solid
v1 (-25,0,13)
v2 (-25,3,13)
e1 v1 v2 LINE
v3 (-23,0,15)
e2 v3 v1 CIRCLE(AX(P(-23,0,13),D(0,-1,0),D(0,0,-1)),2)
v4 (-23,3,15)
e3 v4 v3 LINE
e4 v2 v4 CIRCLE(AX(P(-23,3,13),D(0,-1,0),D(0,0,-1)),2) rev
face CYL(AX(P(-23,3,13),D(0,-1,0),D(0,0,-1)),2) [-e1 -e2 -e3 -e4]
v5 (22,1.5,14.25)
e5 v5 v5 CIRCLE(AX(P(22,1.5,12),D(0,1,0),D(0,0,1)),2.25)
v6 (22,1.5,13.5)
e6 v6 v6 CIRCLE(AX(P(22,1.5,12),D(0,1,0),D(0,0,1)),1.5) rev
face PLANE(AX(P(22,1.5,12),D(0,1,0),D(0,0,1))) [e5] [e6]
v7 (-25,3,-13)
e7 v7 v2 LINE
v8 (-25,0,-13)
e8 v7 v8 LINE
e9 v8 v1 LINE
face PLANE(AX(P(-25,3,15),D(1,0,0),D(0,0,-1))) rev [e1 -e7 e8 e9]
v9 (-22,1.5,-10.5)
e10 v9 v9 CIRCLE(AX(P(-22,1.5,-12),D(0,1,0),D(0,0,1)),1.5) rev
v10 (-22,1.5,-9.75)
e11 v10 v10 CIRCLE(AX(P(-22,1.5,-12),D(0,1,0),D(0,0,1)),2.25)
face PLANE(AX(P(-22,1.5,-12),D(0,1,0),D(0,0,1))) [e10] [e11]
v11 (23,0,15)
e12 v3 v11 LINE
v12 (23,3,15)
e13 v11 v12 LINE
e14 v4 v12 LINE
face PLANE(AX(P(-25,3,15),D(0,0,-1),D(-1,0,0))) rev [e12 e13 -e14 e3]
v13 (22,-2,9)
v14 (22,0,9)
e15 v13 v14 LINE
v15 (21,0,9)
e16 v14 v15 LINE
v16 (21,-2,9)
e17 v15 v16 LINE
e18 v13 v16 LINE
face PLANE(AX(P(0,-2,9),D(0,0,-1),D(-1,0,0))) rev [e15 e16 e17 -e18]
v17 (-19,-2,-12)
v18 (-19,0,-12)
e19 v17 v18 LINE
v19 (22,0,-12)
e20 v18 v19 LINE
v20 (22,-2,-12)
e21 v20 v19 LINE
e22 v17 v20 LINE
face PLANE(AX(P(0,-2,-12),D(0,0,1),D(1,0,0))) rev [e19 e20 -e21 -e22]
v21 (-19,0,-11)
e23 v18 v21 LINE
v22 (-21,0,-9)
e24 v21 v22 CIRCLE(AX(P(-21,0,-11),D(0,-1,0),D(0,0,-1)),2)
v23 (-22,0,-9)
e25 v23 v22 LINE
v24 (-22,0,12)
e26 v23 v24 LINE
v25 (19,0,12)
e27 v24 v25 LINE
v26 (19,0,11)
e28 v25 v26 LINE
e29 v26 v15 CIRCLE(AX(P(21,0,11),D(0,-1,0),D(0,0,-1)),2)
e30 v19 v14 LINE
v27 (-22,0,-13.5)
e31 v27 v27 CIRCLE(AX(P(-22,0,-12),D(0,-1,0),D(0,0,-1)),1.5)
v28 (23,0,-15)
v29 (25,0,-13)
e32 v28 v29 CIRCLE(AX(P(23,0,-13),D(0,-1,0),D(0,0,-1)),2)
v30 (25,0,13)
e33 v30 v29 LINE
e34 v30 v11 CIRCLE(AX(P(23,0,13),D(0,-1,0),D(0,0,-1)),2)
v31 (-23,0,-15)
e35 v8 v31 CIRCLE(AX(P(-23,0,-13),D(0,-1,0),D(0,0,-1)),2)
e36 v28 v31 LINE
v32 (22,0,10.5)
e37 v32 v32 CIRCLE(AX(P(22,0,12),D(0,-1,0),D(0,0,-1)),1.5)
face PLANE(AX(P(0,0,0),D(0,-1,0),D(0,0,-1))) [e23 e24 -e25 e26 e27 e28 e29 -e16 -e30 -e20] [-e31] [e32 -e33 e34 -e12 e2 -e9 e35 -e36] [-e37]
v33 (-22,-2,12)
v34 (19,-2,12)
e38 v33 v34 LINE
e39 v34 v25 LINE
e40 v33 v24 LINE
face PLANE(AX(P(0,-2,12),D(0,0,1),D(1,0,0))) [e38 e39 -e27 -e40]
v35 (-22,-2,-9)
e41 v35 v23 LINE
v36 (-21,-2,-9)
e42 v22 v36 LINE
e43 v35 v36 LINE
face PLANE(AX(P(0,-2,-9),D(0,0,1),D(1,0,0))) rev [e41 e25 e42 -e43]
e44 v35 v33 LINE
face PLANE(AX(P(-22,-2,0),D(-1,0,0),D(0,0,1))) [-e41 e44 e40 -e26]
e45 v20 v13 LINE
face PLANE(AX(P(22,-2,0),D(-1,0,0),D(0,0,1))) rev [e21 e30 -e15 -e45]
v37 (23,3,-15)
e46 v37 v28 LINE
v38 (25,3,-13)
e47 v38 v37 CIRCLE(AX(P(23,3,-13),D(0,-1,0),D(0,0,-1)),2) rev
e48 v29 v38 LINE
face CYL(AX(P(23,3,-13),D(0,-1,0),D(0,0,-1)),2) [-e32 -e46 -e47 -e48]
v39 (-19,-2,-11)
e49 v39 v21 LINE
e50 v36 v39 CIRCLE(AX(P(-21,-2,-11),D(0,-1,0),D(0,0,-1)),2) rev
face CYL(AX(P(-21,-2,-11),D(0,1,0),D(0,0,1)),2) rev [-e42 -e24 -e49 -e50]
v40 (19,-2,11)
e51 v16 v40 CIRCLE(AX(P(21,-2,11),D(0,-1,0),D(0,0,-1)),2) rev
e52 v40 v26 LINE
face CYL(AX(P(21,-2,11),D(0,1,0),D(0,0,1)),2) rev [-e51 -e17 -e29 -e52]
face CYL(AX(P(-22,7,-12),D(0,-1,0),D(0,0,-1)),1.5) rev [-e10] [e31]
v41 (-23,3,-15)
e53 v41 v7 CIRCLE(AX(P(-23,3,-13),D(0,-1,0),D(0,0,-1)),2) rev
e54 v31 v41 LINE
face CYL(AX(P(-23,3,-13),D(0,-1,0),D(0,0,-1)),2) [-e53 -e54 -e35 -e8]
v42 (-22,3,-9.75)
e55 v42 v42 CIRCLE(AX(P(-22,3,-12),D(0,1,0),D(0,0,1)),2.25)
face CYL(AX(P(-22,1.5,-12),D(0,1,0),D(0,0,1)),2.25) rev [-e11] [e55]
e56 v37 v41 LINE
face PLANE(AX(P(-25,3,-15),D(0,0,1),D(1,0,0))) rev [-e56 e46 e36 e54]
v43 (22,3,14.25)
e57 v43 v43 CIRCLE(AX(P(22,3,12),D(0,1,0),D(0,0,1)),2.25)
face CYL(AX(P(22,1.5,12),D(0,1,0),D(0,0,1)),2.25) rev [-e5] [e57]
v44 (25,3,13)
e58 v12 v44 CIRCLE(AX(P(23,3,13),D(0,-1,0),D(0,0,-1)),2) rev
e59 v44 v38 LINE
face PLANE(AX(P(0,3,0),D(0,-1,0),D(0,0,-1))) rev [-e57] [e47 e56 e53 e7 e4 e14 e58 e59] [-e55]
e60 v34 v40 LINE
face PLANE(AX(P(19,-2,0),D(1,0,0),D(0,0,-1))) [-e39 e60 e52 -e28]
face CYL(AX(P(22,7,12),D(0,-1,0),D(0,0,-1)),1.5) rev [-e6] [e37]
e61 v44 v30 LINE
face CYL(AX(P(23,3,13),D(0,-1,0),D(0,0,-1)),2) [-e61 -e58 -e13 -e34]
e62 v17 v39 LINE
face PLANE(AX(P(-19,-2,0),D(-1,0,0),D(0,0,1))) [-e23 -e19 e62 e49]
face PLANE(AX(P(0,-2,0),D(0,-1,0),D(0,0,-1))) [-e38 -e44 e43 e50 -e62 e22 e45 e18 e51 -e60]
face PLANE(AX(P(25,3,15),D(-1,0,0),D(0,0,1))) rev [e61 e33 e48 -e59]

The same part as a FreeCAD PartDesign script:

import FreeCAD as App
import Part
import Sketcher

V = App.Vector


def edges_at(feature, points):
    """Names of the edges that pass closest to the given points."""
    edges = feature.Shape.Edges
    near = lambda p: min(range(len(edges)), key=lambda i: edges[i].distToShape(Part.Vertex(*p))[0])
    return sorted({f"Edge{near(p) + 1}" for p in points})

doc = App.newDocument("Part")
params = doc.addObject("Spreadsheet::Sheet", "Params")
for row, (alias, value) in enumerate([
    ("sketch1_width", "50 mm"),
    ("sketch1_height", "30 mm"),
    ("pad1_length", "3 mm"),
    ("sketch2_width", "41 mm"),
    ("sketch2_width2", "3 mm"),
    ("sketch2_height", "21 mm"),
    ("pad2_length", "2 mm"),
    ("fillet_radius", "2 mm"),
    ("sketch3_diameter", "3 mm"),
    ("pocket1_length", "7 mm"),
    ("fillet2_radius", "2 mm"),
    ("sketch4_diameter", "4.5 mm"),
    ("pocket2_length", "1.5 mm"),
], start=1):
    params.set(f"A{row}", alias)
    params.set(f"B{row}", "=" + value)
    params.setAlias(f"B{row}", alias)

body = doc.addObject("PartDesign::Body", "Body")

# Sketch on XZ plane
sketch1 = body.newObject("Sketcher::SketchObject", "Sketch")
sketch1.AttachmentSupport = (doc.getObject("XZ_Plane"), [""])
sketch1.MapMode = "FlatFace"
sketch1.addGeometry(Part.LineSegment(V(-25, -15, 0), V(-25, 15, 0)), False)
sketch1.addGeometry(Part.LineSegment(V(-25, 15, 0), V(25, 15, 0)), False)
sketch1.addGeometry(Part.LineSegment(V(25, 15, 0), V(25, -15, 0)), False)
sketch1.addGeometry(Part.LineSegment(V(25, -15, 0), V(-25, -15, 0)), False)
sketch1.addConstraint(Sketcher.Constraint("Coincident", 0, 2, 1, 1))
sketch1.addConstraint(Sketcher.Constraint("Coincident", 1, 2, 2, 1))
sketch1.addConstraint(Sketcher.Constraint("Coincident", 2, 2, 3, 1))
sketch1.addConstraint(Sketcher.Constraint("Coincident", 3, 2, 0, 1))
sketch1.addConstraint(Sketcher.Constraint("Vertical", 0))
sketch1.addConstraint(Sketcher.Constraint("Horizontal", 1))
sketch1.addConstraint(Sketcher.Constraint("Vertical", 2))
sketch1.addConstraint(Sketcher.Constraint("Horizontal", 3))
sketch1.addConstraint(Sketcher.Constraint("Symmetric", 0, 2, 2, 2, -1, 1))
sketch1.addConstraint(Sketcher.Constraint("DistanceX", 1, 1, 1, 2, 50.0))
sketch1.addConstraint(Sketcher.Constraint("DistanceY", 0, 1, 0, 2, 30.0))
sketch1.setExpression("Constraints[9]", "Params.sketch1_width")
sketch1.setExpression("Constraints[10]", "Params.sketch1_height")
pad1 = body.newObject("PartDesign::Pad", "Pad")
pad1.Profile = sketch1
pad1.setExpression("Length", "Params.pad1_length")
pad1.Reversed = True

# Sketch on XZ plane
sketch2 = body.newObject("Sketcher::SketchObject", "Sketch001")
sketch2.AttachmentSupport = (doc.getObject("XZ_Plane"), [""])
sketch2.MapMode = "FlatFace"
sketch2.addGeometry(Part.LineSegment(V(-19, -12, 0), V(22, -12, 0)), False)
sketch2.addGeometry(Part.LineSegment(V(22, -12, 0), V(22, 9, 0)), False)
sketch2.addGeometry(Part.LineSegment(V(22, 9, 0), V(19, 9, 0)), False)
sketch2.addGeometry(Part.LineSegment(V(19, 9, 0), V(19, 12, 0)), False)
sketch2.addGeometry(Part.LineSegment(V(19, 12, 0), V(-22, 12, 0)), False)
sketch2.addGeometry(Part.LineSegment(V(-22, 12, 0), V(-22, -9, 0)), False)
sketch2.addGeometry(Part.LineSegment(V(-22, -9, 0), V(-19, -9, 0)), False)
sketch2.addGeometry(Part.LineSegment(V(-19, -9, 0), V(-19, -12, 0)), False)
sketch2.addConstraint(Sketcher.Constraint("Coincident", 0, 2, 1, 1))
sketch2.addConstraint(Sketcher.Constraint("Coincident", 1, 2, 2, 1))
sketch2.addConstraint(Sketcher.Constraint("Coincident", 2, 2, 3, 1))
sketch2.addConstraint(Sketcher.Constraint("Coincident", 3, 2, 4, 1))
sketch2.addConstraint(Sketcher.Constraint("Coincident", 4, 2, 5, 1))
sketch2.addConstraint(Sketcher.Constraint("Coincident", 5, 2, 6, 1))
sketch2.addConstraint(Sketcher.Constraint("Coincident", 6, 2, 7, 1))
sketch2.addConstraint(Sketcher.Constraint("Coincident", 7, 2, 0, 1))
sketch2.addConstraint(Sketcher.Constraint("Horizontal", 0))
sketch2.addConstraint(Sketcher.Constraint("Vertical", 1))
sketch2.addConstraint(Sketcher.Constraint("Horizontal", 2))
sketch2.addConstraint(Sketcher.Constraint("Vertical", 3))
sketch2.addConstraint(Sketcher.Constraint("Horizontal", 4))
sketch2.addConstraint(Sketcher.Constraint("Vertical", 5))
sketch2.addConstraint(Sketcher.Constraint("Horizontal", 6))
sketch2.addConstraint(Sketcher.Constraint("Vertical", 7))
sketch2.addConstraint(Sketcher.Constraint("Symmetric", 0, 2, 4, 2, -1, 1))
sketch2.addConstraint(Sketcher.Constraint("Symmetric", 2, 2, 6, 2, -1, 1))
sketch2.addConstraint(Sketcher.Constraint("Equal", 6, 3))
sketch2.addConstraint(Sketcher.Constraint("DistanceX", 0, 1, 0, 2, 41.0))
sketch2.addConstraint(Sketcher.Constraint("DistanceX", 2, 2, 2, 1, 3.0))
sketch2.addConstraint(Sketcher.Constraint("DistanceY", 1, 1, 1, 2, 21.0))
sketch2.setExpression("Constraints[19]", "Params.sketch2_width")
sketch2.setExpression("Constraints[20]", "Params.sketch2_width2")
sketch2.setExpression("Constraints[21]", "Params.sketch2_height")
pad2 = body.newObject("PartDesign::Pad", "Pad001")
pad2.Profile = sketch2
pad2.setExpression("Length", "Params.pad2_length")
doc.recompute()

fillet = body.newObject("PartDesign::Fillet", "Fillet")
fillet.Base = (pad2, edges_at(pad2, [
    (25, 1.5, 15),
    (-25, 1.5, 15),
    (-25, 1.5, -15),
    (25, 1.5, -15),
]))
fillet.setExpression("Radius", "Params.fillet_radius")

# Sketch on XZ plane
sketch3 = body.newObject("Sketcher::SketchObject", "Sketch002")
sketch3.AttachmentSupport = (doc.getObject("XZ_Plane"), [""])
sketch3.MapMode = "FlatFace"
sketch3.addGeometry(Part.Circle(V(-22, -12, 0), V(0, 0, 1), 1.5), False)
sketch3.addGeometry(Part.Circle(V(22, 12, 0), V(0, 0, 1), 1.5), False)
sketch3.addConstraint(Sketcher.Constraint("Equal", 0, 1))
sketch3.addConstraint(Sketcher.Constraint("Symmetric", 0, 3, 1, 3, -1, 1))
sketch3.addConstraint(Sketcher.Constraint("Diameter", 0, 3.0))
sketch3.addConstraint(Sketcher.Constraint("DistanceX", 0, 3, -1, 1, 22.0))
sketch3.addConstraint(Sketcher.Constraint("DistanceY", 0, 3, -1, 1, 12.0))
sketch3.setExpression("Constraints[2]", "Params.sketch3_diameter")
pocket1 = body.newObject("PartDesign::Pocket", "Pocket")
pocket1.Profile = sketch3
pocket1.setExpression("Length", "Params.pocket1_length")
doc.recompute()

fillet2 = body.newObject("PartDesign::Fillet", "Fillet001")
fillet2.Base = (pocket1, edges_at(pocket1, [(-19, -1, -9), (19, -1, 9)]))
fillet2.setExpression("Radius", "Params.fillet2_radius")

# Sketch on XZ plane
sketch4 = body.newObject("Sketcher::SketchObject", "Sketch003")
sketch4.AttachmentSupport = (doc.getObject("XZ_Plane"), [""])
sketch4.MapMode = "FlatFace"
sketch4.AttachmentOffset = App.Placement(V(0, 0, -3), App.Rotation())
sketch4.addGeometry(Part.Circle(V(-22, -12, 0), V(0, 0, 1), 2.2), False)
sketch4.addGeometry(Part.Circle(V(22, 12, 0), V(0, 0, 1), 2.2), False)
sketch4.addConstraint(Sketcher.Constraint("Equal", 0, 1))
sketch4.addConstraint(Sketcher.Constraint("Symmetric", 0, 3, 1, 3, -1, 1))
sketch4.addConstraint(Sketcher.Constraint("Diameter", 0, 4.5))
sketch4.addConstraint(Sketcher.Constraint("DistanceX", 0, 3, -1, 1, 22.0))
sketch4.addConstraint(Sketcher.Constraint("DistanceY", 0, 3, -1, 1, 12.0))
sketch4.setExpression("Constraints[2]", "Params.sketch4_diameter")
pocket2 = body.newObject("PartDesign::Pocket", "Pocket001")
pocket2.Profile = sketch4
pocket2.setExpression("Length", "Params.pocket2_length")
pocket2.Reversed = True

doc.recompute()
